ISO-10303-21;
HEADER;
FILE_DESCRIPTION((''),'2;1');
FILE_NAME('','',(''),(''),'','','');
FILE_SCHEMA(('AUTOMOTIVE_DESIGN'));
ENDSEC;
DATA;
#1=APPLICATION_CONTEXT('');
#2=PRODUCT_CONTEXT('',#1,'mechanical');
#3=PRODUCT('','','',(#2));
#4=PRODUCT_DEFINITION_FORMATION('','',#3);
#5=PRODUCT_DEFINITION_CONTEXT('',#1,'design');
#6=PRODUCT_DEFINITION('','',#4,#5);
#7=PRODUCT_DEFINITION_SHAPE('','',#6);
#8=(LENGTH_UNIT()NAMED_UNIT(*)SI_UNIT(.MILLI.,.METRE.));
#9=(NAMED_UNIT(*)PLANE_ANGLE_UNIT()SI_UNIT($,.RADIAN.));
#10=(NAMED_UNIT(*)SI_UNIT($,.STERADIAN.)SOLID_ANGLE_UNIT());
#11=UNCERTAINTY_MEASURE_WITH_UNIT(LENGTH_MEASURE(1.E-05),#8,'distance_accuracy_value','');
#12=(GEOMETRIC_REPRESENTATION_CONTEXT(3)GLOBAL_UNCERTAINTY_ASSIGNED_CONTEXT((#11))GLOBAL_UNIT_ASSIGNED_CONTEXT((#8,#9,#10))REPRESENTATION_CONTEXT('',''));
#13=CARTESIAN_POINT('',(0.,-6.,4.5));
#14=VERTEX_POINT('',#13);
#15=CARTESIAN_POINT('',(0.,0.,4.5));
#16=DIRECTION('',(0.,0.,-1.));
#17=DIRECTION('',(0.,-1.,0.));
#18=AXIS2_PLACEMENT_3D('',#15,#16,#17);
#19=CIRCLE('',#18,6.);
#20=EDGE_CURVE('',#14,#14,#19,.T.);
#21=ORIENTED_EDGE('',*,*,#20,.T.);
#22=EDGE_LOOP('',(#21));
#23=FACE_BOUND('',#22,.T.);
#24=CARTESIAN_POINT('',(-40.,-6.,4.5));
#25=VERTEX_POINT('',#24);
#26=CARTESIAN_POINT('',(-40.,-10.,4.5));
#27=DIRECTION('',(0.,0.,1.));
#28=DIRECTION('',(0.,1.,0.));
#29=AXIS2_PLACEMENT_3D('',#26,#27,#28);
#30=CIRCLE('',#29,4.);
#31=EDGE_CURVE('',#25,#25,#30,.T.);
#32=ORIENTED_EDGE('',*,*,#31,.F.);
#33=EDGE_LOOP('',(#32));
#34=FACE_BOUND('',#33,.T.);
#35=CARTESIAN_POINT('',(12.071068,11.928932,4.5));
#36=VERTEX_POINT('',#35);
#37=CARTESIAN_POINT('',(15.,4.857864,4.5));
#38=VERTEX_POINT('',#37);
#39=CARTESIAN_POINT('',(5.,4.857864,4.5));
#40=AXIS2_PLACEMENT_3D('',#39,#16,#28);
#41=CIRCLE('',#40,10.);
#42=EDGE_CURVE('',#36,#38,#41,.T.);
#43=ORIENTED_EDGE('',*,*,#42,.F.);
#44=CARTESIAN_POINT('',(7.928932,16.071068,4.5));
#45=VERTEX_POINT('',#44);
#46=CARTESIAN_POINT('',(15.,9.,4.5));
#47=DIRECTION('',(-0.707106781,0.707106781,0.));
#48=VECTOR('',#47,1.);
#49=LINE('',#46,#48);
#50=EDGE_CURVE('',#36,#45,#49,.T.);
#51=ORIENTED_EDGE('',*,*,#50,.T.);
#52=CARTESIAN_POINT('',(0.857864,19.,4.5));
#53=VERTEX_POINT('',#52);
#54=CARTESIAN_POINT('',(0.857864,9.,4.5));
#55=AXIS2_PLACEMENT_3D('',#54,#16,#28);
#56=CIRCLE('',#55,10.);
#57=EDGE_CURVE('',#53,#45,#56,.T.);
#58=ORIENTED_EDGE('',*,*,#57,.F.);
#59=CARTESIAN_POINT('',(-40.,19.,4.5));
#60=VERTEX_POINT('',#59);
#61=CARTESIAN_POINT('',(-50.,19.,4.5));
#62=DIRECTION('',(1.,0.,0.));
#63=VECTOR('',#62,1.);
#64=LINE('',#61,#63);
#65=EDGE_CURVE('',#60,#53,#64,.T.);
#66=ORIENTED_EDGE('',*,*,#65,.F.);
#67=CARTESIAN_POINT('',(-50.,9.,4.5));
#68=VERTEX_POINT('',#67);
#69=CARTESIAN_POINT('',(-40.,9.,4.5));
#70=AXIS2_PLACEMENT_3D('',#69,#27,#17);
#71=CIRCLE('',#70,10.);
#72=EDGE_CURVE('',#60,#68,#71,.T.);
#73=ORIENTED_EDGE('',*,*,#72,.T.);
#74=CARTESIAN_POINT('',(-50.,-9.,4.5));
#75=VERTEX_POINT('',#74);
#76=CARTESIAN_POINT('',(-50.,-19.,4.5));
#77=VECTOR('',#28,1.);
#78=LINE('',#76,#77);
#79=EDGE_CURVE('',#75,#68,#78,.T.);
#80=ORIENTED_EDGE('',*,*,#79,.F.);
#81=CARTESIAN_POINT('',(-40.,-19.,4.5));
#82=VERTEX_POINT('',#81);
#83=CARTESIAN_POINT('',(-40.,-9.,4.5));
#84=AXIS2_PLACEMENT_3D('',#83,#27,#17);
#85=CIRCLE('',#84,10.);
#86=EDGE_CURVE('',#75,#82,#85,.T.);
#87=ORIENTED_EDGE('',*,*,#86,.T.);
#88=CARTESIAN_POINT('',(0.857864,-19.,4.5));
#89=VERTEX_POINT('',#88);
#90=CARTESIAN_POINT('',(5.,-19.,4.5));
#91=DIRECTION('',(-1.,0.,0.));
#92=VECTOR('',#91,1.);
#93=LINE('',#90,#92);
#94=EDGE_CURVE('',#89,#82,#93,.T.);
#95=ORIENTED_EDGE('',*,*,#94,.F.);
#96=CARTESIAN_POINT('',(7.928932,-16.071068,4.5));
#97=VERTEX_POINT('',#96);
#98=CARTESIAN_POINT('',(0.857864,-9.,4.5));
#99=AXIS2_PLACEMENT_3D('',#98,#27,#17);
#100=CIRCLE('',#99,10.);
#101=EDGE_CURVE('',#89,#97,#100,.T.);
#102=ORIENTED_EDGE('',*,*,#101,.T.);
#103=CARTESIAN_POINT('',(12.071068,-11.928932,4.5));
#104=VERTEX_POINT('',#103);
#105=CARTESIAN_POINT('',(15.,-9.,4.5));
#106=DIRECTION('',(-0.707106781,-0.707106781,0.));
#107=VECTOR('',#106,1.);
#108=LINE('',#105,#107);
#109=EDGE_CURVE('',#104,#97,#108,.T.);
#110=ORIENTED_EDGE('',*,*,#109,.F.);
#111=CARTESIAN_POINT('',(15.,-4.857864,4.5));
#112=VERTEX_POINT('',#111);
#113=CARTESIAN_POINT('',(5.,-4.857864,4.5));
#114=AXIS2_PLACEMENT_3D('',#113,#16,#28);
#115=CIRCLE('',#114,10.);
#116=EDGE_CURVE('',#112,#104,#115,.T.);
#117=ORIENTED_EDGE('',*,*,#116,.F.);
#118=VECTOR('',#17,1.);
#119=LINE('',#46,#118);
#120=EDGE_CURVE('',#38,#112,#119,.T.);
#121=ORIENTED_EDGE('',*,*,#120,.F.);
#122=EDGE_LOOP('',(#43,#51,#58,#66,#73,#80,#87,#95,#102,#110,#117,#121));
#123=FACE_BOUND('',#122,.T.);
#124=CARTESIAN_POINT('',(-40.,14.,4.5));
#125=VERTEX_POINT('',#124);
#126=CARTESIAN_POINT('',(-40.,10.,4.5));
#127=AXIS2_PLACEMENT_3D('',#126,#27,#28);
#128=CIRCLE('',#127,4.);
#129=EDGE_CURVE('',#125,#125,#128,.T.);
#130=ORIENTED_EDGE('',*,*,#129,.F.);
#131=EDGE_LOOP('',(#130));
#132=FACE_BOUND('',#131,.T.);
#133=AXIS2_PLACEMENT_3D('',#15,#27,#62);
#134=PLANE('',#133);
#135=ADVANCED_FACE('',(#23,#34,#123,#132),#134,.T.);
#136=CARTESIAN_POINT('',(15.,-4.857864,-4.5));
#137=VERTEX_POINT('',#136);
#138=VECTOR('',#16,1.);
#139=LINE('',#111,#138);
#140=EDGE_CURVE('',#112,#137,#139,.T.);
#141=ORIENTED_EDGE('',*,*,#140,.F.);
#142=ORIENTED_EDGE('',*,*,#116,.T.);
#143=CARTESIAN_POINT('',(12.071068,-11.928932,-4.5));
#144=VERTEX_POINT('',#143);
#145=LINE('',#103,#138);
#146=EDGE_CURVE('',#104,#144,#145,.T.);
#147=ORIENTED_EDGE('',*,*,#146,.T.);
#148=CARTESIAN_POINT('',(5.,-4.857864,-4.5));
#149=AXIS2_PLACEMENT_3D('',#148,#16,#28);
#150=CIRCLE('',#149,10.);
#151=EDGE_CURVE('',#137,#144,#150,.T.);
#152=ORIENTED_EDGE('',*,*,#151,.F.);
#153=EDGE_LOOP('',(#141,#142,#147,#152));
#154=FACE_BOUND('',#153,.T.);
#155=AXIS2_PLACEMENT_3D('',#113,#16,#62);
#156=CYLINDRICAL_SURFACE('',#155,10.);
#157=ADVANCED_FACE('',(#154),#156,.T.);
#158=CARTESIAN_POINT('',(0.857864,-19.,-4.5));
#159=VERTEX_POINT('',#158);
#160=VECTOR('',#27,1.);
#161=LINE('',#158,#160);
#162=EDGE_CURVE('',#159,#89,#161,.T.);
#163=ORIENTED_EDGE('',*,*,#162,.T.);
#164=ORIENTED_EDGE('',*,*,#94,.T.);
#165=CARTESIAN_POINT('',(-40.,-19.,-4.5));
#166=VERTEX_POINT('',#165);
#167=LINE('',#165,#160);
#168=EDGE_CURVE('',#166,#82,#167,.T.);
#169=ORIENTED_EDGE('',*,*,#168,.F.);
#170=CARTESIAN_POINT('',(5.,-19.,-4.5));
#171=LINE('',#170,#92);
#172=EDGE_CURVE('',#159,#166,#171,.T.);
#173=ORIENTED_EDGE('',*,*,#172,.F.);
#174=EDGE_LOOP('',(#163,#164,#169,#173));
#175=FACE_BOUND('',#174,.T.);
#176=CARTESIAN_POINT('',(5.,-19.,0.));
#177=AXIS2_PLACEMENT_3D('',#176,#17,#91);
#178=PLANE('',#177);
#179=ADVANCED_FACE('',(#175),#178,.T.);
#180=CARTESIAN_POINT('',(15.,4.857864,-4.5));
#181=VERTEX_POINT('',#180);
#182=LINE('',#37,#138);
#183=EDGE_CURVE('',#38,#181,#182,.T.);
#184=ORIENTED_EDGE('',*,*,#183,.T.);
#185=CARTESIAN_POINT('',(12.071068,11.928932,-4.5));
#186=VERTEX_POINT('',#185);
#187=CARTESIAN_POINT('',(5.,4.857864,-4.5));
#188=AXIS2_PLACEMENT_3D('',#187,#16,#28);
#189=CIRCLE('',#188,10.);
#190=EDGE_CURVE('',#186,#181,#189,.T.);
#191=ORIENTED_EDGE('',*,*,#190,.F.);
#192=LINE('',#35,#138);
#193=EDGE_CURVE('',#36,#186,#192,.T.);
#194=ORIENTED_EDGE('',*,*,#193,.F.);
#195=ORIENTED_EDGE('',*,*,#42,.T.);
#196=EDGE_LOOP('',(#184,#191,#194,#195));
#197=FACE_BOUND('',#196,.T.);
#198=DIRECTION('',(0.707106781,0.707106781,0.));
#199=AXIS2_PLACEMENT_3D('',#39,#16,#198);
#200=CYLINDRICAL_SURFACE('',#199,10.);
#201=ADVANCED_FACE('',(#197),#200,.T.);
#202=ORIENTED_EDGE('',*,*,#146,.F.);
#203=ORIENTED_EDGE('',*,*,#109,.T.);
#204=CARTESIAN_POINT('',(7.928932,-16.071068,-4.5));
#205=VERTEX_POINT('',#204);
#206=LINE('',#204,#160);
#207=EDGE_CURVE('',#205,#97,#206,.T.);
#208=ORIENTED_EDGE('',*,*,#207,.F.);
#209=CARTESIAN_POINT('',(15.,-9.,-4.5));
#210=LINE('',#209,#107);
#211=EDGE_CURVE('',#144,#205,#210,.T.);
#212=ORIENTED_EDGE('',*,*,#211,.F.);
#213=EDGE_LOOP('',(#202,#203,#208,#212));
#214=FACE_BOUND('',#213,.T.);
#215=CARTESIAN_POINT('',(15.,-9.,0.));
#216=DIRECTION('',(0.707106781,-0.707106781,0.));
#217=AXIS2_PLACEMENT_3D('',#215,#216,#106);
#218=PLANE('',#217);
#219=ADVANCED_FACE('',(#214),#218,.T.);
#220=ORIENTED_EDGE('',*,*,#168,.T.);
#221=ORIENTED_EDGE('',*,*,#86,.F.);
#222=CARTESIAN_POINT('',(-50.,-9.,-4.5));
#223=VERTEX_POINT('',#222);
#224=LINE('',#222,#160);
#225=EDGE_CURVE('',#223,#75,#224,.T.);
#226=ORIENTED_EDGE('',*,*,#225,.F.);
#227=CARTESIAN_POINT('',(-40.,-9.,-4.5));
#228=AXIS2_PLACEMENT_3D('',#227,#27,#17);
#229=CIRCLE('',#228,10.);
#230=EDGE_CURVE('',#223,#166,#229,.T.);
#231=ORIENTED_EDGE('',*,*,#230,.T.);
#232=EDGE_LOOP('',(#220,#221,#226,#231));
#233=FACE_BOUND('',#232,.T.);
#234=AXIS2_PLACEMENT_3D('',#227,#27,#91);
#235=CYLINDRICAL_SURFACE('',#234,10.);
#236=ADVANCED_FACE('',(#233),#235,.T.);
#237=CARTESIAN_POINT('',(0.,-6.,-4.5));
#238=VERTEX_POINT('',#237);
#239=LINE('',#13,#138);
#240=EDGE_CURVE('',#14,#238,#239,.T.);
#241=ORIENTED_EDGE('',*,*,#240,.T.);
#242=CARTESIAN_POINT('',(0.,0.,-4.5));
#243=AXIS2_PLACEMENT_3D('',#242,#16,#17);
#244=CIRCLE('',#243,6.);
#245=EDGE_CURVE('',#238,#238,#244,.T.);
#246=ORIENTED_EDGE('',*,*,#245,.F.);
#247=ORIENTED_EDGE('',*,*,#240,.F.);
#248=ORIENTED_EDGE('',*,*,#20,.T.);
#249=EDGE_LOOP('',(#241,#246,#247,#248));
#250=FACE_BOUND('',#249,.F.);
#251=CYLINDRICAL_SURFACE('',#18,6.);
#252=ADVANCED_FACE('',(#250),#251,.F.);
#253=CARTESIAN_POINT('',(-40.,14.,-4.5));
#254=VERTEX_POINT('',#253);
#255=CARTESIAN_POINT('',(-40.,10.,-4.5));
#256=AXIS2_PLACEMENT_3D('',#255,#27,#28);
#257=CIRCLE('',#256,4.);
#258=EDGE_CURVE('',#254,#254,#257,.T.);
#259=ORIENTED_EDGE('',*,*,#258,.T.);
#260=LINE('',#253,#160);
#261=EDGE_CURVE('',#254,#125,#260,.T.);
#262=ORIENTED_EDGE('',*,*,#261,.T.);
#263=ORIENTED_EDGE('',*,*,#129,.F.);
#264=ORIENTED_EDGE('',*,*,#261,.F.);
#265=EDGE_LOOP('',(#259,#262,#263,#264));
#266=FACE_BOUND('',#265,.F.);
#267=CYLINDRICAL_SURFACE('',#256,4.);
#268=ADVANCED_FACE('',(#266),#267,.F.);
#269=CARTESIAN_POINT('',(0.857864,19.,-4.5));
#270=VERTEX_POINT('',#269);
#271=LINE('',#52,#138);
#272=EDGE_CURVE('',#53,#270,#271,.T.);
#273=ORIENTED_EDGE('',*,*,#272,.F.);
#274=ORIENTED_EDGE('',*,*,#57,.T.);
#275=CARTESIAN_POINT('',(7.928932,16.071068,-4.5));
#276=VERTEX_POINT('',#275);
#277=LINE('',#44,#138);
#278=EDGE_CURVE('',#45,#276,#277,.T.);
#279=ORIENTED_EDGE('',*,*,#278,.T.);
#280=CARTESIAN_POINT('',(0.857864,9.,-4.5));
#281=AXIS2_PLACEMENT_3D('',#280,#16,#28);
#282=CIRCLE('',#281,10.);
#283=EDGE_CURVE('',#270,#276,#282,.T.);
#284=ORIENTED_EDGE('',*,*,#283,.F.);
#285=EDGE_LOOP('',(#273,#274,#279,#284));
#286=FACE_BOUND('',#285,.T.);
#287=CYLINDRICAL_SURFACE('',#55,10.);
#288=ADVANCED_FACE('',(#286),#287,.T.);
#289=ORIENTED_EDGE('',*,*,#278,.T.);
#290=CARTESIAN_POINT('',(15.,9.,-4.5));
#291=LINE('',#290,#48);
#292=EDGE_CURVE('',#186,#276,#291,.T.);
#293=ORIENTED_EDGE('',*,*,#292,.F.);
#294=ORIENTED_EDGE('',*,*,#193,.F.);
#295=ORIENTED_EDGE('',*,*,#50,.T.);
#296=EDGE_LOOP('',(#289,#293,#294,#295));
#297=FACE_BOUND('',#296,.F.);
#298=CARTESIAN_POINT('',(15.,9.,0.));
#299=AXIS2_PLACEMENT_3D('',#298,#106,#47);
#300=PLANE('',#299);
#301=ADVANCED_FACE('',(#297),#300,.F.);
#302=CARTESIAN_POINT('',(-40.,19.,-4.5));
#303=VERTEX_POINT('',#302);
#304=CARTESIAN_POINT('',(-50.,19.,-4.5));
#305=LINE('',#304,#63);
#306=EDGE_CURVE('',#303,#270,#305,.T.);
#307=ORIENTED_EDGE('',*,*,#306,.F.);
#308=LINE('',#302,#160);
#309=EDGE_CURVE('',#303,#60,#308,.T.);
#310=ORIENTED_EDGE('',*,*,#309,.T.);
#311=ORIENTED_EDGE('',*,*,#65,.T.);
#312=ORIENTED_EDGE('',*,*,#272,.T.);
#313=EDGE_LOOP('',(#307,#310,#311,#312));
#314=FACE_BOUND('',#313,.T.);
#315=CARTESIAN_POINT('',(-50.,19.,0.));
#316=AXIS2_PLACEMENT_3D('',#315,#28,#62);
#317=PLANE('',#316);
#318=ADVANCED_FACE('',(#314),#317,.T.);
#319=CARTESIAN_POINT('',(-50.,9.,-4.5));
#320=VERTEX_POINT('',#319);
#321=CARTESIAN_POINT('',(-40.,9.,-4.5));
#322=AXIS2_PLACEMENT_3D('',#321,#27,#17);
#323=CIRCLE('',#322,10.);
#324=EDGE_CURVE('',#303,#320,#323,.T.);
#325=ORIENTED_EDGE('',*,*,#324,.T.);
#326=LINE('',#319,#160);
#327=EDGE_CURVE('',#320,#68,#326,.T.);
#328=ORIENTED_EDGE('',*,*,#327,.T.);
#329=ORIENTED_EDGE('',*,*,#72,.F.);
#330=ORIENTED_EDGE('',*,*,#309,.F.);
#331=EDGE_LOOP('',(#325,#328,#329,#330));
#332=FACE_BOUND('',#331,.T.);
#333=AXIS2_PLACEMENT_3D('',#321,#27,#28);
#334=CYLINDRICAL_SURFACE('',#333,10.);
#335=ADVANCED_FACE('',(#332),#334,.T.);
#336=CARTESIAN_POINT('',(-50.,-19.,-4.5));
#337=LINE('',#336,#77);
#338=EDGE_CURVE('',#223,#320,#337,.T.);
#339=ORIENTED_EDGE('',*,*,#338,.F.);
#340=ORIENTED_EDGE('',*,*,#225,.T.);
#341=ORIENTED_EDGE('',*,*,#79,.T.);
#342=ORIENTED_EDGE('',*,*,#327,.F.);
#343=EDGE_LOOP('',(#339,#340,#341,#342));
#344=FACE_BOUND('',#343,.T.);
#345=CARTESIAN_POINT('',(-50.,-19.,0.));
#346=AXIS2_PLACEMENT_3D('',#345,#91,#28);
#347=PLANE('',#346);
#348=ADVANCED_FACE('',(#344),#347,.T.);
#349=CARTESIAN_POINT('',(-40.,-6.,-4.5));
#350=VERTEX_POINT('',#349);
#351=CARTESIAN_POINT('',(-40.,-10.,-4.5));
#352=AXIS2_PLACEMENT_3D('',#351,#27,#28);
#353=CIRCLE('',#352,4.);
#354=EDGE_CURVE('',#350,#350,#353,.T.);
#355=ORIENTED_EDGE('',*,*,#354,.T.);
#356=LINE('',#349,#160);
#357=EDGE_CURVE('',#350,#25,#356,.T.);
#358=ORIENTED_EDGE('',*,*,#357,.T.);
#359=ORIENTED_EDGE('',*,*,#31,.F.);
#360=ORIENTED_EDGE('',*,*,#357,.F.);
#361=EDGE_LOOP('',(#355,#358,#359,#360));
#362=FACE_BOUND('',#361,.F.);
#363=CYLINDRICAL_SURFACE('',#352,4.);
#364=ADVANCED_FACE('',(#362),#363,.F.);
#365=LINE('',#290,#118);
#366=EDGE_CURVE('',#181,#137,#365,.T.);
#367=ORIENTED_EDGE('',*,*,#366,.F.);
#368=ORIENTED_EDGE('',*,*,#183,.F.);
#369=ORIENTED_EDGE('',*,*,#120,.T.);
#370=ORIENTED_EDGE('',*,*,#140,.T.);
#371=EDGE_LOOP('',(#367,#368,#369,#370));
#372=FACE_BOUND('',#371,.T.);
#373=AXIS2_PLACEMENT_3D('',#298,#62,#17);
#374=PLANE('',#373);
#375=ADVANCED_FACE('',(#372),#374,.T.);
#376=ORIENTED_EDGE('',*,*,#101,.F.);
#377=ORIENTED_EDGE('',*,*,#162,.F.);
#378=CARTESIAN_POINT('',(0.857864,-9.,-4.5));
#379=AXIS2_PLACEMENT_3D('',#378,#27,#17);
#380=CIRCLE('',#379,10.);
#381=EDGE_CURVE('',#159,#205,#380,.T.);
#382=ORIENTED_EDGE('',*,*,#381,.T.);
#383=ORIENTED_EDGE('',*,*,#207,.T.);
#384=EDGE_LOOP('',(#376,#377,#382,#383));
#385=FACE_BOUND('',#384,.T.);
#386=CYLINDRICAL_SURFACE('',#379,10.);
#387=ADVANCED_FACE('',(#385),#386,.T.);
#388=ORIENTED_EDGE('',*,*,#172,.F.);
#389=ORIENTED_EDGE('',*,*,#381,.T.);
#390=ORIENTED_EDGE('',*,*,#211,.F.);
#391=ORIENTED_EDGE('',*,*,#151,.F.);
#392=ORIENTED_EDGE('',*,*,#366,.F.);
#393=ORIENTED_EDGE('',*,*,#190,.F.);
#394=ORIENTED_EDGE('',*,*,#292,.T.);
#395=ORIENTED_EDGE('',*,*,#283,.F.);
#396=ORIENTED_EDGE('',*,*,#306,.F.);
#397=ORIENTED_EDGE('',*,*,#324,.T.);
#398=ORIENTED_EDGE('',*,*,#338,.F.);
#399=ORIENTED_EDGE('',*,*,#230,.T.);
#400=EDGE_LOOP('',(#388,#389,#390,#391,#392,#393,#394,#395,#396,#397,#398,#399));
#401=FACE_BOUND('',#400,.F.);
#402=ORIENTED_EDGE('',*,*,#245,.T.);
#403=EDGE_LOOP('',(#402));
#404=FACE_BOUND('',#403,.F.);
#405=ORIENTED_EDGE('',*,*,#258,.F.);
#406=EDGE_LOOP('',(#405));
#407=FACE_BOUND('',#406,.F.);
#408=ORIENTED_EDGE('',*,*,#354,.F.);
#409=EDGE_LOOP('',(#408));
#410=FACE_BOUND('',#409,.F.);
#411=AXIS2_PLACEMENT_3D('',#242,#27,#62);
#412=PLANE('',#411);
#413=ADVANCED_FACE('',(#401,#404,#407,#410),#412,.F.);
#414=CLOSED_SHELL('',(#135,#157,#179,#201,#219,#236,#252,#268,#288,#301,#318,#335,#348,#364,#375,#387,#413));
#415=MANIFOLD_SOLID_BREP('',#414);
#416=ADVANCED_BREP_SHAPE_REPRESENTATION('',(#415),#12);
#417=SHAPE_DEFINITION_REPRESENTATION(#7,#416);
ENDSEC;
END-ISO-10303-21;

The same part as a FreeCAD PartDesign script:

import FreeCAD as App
import Part
import Sketcher
from FreeCAD import Vector
Q = App.Units.Quantity


def edges_at(feature, points):
    """Names of the edges that pass closest to the given points."""
    edges = feature.Shape.Edges
    near = lambda p: min(range(len(edges)), key=lambda i: edges[i].distToShape(Part.Vertex(*p))[0])
    return sorted({f"Edge{near(p) + 1}" for p in points})

doc = App.newDocument("Part")
body = doc.addObject("PartDesign::Body", "Body")

# Sketch on XY plane
sketch1 = body.newObject("Sketcher::SketchObject", "Sketch")
sketch1.AttachmentSupport = (doc.getObject("XY_Plane"), [""])
sketch1.MapMode = "FlatFace"
sketch1.addGeometry([
    Part.LineSegment(Vector(5, 19, 0), Vector(-50, 19, 0)),  # 0
    Part.LineSegment(Vector(-50, 19, 0), Vector(-50, -19, 0)),  # 1
    Part.LineSegment(Vector(-50, -19, 0), Vector(5, -19, 0)),  # 2
    Part.LineSegment(Vector(5, -19, 0), Vector(15, -9, 0)),  # 3
    Part.LineSegment(Vector(15, -9, 0), Vector(15, 9, 0)),  # 4
    Part.LineSegment(Vector(15, 9, 0), Vector(5, 19, 0)),  # 5
], False)
sketch1.addConstraint([
    Sketcher.Constraint("Coincident", 0, 2, 1, 1),
    Sketcher.Constraint("Coincident", 1, 2, 2, 1),
    Sketcher.Constraint("Coincident", 2, 2, 3, 1),
    Sketcher.Constraint("Coincident", 3, 2, 4, 1),
    Sketcher.Constraint("Coincident", 4, 2, 5, 1),
    Sketcher.Constraint("Coincident", 5, 2, 0, 1),
    Sketcher.Constraint("Horizontal", 0),
    Sketcher.Constraint("Vertical", 1),
    Sketcher.Constraint("Horizontal", 2),
    Sketcher.Constraint("Vertical", 4),
    Sketcher.Constraint("Symmetric", 2, 2, 5, 2, -1),
    Sketcher.Constraint("Perpendicular", 3, 5),
    Sketcher.Constraint("Equal", 3, 5),
    Sketcher.Constraint("DistanceY", 1, 2, 1, 1, Q("38 mm")),
    Sketcher.Constraint("DistanceX", 0, 2, -1, 1, Q("50 mm")),
    Sketcher.Constraint("DistanceX", 2, 2, 3, 2, Q("10 mm")),
    Sketcher.Constraint("DistanceX", 1, 2, 3, 2, Q("65 mm")),
])
pad1 = body.newObject("PartDesign::Pad", "Pad")
pad1.Profile = sketch1
pad1.Length = 9
pad1.Midplane = True

# Sketch on XY plane
sketch2 = body.newObject("Sketcher::SketchObject", "Sketch001")
sketch2.AttachmentSupport = (doc.getObject("XY_Plane"), [""])
sketch2.MapMode = "FlatFace"
sketch2.AttachmentOffset = App.Placement(Vector(0, 0, -4.5), App.Rotation())
sketch2.addGeometry([
    Part.Circle(Vector(-40, -10, 0), Vector(0, 0, 1), 4),
    Part.Circle(Vector(-40, 10, 0), Vector(0, 0, 1), 4),
], False)
sketch2.addConstraint([
    Sketcher.Constraint("Equal", 0, 1),
    Sketcher.Constraint("Symmetric", 0, 3, 1, 3, -1),
    Sketcher.Constraint("Diameter", 0, Q("8 mm")),
    Sketcher.Constraint("DistanceX", 0, 3, -1, 1, Q("40 mm")),
    Sketcher.Constraint("DistanceY", 0, 3, -1, 1, Q("10 mm")),
])
doc.recompute()
hole = body.newObject("PartDesign::Hole", "Hole")
hole.Profile = sketch2
hole.ThreadType = "None"
hole.Diameter = 8
hole.DepthType = "ThroughAll"
hole.Reversed = True

# Sketch on XY plane
sketch3 = body.newObject("Sketcher::SketchObject", "Sketch002")
sketch3.AttachmentSupport = (doc.getObject("XY_Plane"), [""])
sketch3.MapMode = "FlatFace"
sketch3.AttachmentOffset = App.Placement(Vector(0, 0, 4.5), App.Rotation())
sketch3.addGeometry(Part.Circle(Vector(0, 0, 0), Vector(0, 0, 1), 6), False)
sketch3.addConstraint([
    Sketcher.Constraint("Coincident", 0, 3, -1, 1),
    Sketcher.Constraint("Diameter", 0, Q("12 mm")),
])
doc.recompute()
hole2 = body.newObject("PartDesign::Hole", "Hole001")
hole2.Profile = sketch3
hole2.ThreadType = "None"
hole2.Diameter = 12
hole2.DepthType = "ThroughAll"
doc.recompute()

fillet = body.newObject("PartDesign::Fillet", "Fillet")
fillet.Base = (hole2, edges_at(hole2, [
    (-50, 19, 0),
    (-50, -19, 0),
    (5, -19, 0),
    (15, -9, 0),
    (15, 9, 0),
    (5, 19, 0),
]))
fillet.Radius = 10

doc.recompute()
